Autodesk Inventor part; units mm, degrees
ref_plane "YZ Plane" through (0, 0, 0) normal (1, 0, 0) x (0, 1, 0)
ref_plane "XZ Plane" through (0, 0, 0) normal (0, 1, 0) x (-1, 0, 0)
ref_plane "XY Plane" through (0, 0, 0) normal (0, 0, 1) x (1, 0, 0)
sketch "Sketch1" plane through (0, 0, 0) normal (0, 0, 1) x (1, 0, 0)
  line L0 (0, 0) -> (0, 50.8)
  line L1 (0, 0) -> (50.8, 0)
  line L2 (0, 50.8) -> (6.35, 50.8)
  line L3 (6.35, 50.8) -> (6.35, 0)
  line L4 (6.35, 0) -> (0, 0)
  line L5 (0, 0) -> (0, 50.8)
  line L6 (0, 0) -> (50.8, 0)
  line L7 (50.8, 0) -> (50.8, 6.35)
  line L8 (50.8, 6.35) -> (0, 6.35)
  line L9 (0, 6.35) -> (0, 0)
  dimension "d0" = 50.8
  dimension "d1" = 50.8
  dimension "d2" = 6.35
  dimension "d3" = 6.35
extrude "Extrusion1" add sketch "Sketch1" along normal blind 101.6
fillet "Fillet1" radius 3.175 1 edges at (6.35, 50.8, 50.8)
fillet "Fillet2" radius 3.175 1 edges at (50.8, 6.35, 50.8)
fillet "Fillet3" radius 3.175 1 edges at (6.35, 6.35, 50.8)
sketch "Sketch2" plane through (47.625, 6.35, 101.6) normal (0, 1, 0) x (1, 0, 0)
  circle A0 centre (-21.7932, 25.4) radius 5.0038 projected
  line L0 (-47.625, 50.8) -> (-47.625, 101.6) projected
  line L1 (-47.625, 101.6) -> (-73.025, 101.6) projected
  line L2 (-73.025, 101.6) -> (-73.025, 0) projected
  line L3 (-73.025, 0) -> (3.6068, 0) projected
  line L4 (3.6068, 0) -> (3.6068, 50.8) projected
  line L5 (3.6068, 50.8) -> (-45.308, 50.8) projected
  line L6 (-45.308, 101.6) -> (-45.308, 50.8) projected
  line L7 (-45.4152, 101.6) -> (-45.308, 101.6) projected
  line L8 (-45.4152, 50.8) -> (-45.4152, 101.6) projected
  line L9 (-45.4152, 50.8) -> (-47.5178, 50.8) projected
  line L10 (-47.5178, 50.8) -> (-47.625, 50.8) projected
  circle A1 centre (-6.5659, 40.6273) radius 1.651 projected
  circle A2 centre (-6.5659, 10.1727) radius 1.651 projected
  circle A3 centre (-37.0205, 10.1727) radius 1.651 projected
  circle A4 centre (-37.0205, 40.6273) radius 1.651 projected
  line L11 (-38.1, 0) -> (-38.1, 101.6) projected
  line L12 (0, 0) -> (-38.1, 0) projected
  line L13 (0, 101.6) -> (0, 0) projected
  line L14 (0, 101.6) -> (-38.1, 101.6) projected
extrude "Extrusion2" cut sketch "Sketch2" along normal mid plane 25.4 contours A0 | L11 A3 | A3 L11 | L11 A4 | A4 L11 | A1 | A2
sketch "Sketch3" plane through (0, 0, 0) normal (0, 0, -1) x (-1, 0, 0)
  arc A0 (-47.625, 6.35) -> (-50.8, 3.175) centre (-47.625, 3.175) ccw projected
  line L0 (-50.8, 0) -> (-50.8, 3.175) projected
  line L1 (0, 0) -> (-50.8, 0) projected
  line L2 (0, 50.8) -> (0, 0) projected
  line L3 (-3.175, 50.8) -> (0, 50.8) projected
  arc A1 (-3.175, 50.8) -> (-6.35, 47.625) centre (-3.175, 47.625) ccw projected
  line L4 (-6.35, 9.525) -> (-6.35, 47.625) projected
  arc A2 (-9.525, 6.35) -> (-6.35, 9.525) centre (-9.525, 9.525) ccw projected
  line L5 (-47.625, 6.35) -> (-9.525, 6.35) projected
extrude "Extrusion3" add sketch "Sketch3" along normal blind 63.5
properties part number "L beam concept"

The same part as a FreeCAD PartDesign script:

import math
import FreeCAD as App
import Part
import Sketcher
Q = App.Units.Quantity


def edges_at(feature, points):
    """Names of the edges that pass closest to the given points."""
    edges = feature.Shape.Edges
    near = lambda p: min(range(len(edges)), key=lambda i: edges[i].distToShape(Part.Vertex(*p))[0])
    return sorted({f"Edge{near(p) + 1}" for p in points})

doc = App.newDocument("Part")
body = doc.addObject("PartDesign::Body", "Body")

# Sketch on XY plane
sketch1 = body.newObject("Sketcher::SketchObject", "Sketch")
sketch1.AttachmentSupport = (doc.getObject("XY_Plane"), [""])
sketch1.MapMode = "FlatFace"
sketch1.addGeometry(Part.LineSegment(App.Vector(0, 0, 0), App.Vector(51, 0, 0)), False)
sketch1.addGeometry(Part.LineSegment(App.Vector(51, 0, 0), App.Vector(51, 6, 0)), False)
sketch1.addGeometry(Part.LineSegment(App.Vector(51, 6, 0), App.Vector(6, 6, 0)), False)
sketch1.addGeometry(Part.LineSegment(App.Vector(6, 6, 0), App.Vector(6, 51, 0)), False)
sketch1.addGeometry(Part.LineSegment(App.Vector(6, 51, 0), App.Vector(0, 51, 0)), False)
sketch1.addGeometry(Part.LineSegment(App.Vector(0, 51, 0), App.Vector(0, 0, 0)), False)
sketch1.addConstraint(Sketcher.Constraint("Coincident", 0, 2, 1, 1))
sketch1.addConstraint(Sketcher.Constraint("Coincident", 1, 2, 2, 1))
sketch1.addConstraint(Sketcher.Constraint("Coincident", 2, 2, 3, 1))
sketch1.addConstraint(Sketcher.Constraint("Coincident", 3, 2, 4, 1))
sketch1.addConstraint(Sketcher.Constraint("Coincident", 4, 2, 5, 1))
sketch1.addConstraint(Sketcher.Constraint("Coincident", 5, 2, 0, 1))
sketch1.addConstraint(Sketcher.Constraint("Horizontal", 0))
sketch1.addConstraint(Sketcher.Constraint("Vertical", 1))
sketch1.addConstraint(Sketcher.Constraint("Horizontal", 2))
sketch1.addConstraint(Sketcher.Constraint("Vertical", 3))
sketch1.addConstraint(Sketcher.Constraint("Horizontal", 4))
sketch1.addConstraint(Sketcher.Constraint("Vertical", 5))
sketch1.addConstraint(Sketcher.Constraint("Coincident", 5, 2, -1, 1))
sketch1.addConstraint(Sketcher.Constraint("Equal", 4, 1))
sketch1.addConstraint(Sketcher.Constraint("Equal", 2, 3))
sketch1.addConstraint(Sketcher.Constraint("DistanceX", 0, 1, 0, 2, Q("2 in")))
sketch1.addConstraint(Sketcher.Constraint("DistanceX", 4, 2, 4, 1, Q("0.25 in")))
pad1 = body.newObject("PartDesign::Pad", "Pad")
pad1.Profile = sketch1
pad1.Length = Q("4 in")
doc.recompute()

fillet = body.newObject("PartDesign::Fillet", "Fillet")
fillet.Base = (pad1, edges_at(pad1, [(6.35, 50.8, 50.8)]))
fillet.Radius = Q("0.125 in")
doc.recompute()

fillet2 = body.newObject("PartDesign::Fillet", "Fillet001")
fillet2.Base = (fillet, edges_at(fillet, [(50.8, 6.35, 50.8)]))
fillet2.Radius = Q("0.125 in")
doc.recompute()

fillet3 = body.newObject("PartDesign::Fillet", "Fillet002")
fillet3.Base = (fillet2, edges_at(fillet2, [(6.35, 6.35, 50.8)]))
fillet3.Radius = Q("0.125 in")

# Sketch on XZ plane
sketch2 = body.newObject("Sketcher::SketchObject", "Sketch001")
sketch2.AttachmentSupport = (doc.getObject("XZ_Plane"), [""])
sketch2.MapMode = "FlatFace"
sketch2.AttachmentOffset = App.Placement(App.Vector(0, 0, -0.25 * 25.4), App.Rotation())
sketch2.addGeometry(Part.Circle(App.Vector(25.8, 76.2, 0), App.Vector(0, 0, 1), 5), False)
sketch2.addGeometry(Part.Circle(App.Vector(10.6, 91.4, 0), App.Vector(0, 0, 1), 1.7), False)
sketch2.addGeometry(Part.Circle(App.Vector(10.6, 61, 0), App.Vector(0, 0, 1), 1.7), False)
sketch2.addGeometry(Part.Circle(App.Vector(41.1, 61, 0), App.Vector(0, 0, 1), 1.7), False)
sketch2.addGeometry(Part.Circle(App.Vector(41.1, 91.4, 0), App.Vector(0, 0, 1), 1.7), False)
sketch2.addConstraint(Sketcher.Constraint("Equal", 1, 2))
sketch2.addConstraint(Sketcher.Constraint("Equal", 2, 3))
sketch2.addConstraint(Sketcher.Constraint("Equal", 3, 4))
sketch2.addConstraint(Sketcher.Constraint("Horizontal", 2, 3, 3, 3))
sketch2.addConstraint(Sketcher.Constraint("Horizontal", 1, 3, 4, 3))
sketch2.addConstraint(Sketcher.Constraint("Vertical", 1, 3, 2, 3))
sketch2.addConstraint(Sketcher.Constraint("Vertical", 3, 3, 4, 3))
sketch2.addConstraint(Sketcher.Constraint("Diameter", 1, Q("0.13 in")))
sketch2.addConstraint(Sketcher.Constraint("Diameter", 0, Q("0.394 in")))
sketch2.addConstraint(Sketcher.Constraint("DistanceY", -1, 1, 0, 3, Q("3 in")))
sketch2.addConstraint(Sketcher.Constraint("DistanceX", -1, 1, 0, 3, Q("1.017 in")))
sketch2.addConstraint(Sketcher.Constraint("DistanceY", 2, 3, 1, 3, Q("1.199 in")))
sketch2.addConstraint(Sketcher.Constraint("DistanceX", 2, 3, 3, 3, Q("1.199 in")))
sketch2.addConstraint(Sketcher.Constraint("DistanceX", -1, 1, 1, 3, Q("0.4175 in")))
sketch2.addConstraint(Sketcher.Constraint("DistanceY", -1, 1, 1, 3, Q("3.5995 in")))
pocket1 = body.newObject("PartDesign::Pocket", "Pocket")
pocket1.Profile = sketch2
pocket1.Length = Q("1 in")
pocket1.Midplane = True

# Sketch on XY plane
sketch3 = body.newObject("Sketcher::SketchObject", "Sketch002")
sketch3.AttachmentSupport = (doc.getObject("XY_Plane"), [""])
sketch3.MapMode = "FlatFace"
sketch3.addGeometry(Part.LineSegment(App.Vector(9.5, 6.3, 0), App.Vector(47.6, 6.3, 0)), False)
sketch3.addGeometry(Part.ArcOfCircle(Part.Circle(App.Vector(47.6, 3.2, 0), App.Vector(0, 0, 1), 3.2), math.radians(0), math.radians(90)), False)
sketch3.addGeometry(Part.LineSegment(App.Vector(50.8, 3.2, 0), App.Vector(50.8, 0, 0)), False)
sketch3.addGeometry(Part.LineSegment(App.Vector(50.8, 0, 0), App.Vector(0, 0, 0)), False)
sketch3.addGeometry(Part.LineSegment(App.Vector(0, 0, 0), App.Vector(0, 50.8, 0)), False)
sketch3.addGeometry(Part.LineSegment(App.Vector(0, 50.8, 0), App.Vector(3.2, 50.8, 0)), False)
sketch3.addGeometry(Part.ArcOfCircle(Part.Circle(App.Vector(3.2, 47.6, 0), App.Vector(0, 0, 1), 3.2), math.radians(0), math.radians(90)), False)
sketch3.addGeometry(Part.LineSegment(App.Vector(6.3, 47.6, 0), App.Vector(6.3, 9.5, 0)), False)
sketch3.addGeometry(Part.ArcOfCircle(Part.Circle(App.Vector(9.5, 9.5, 0), App.Vector(0, 0, 1), 3.2), math.radians(180), math.radians(270)), False)
sketch3.addConstraint(Sketcher.Constraint("Tangent", 0, 2, 1, 2))
sketch3.addConstraint(Sketcher.Constraint("Tangent", 1, 1, 2, 1))
sketch3.addConstraint(Sketcher.Constraint("Coincident", 2, 2, 3, 1))
sketch3.addConstraint(Sketcher.Constraint("Coincident", 3, 2, 4, 1))
sketch3.addConstraint(Sketcher.Constraint("Coincident", 4, 2, 5, 1))
sketch3.addConstraint(Sketcher.Constraint("Tangent", 5, 2, 6, 2))
sketch3.addConstraint(Sketcher.Constraint("Tangent", 6, 1, 7, 1))
sketch3.addConstraint(Sketcher.Constraint("Tangent", 7, 2, 8, 1))
sketch3.addConstraint(Sketcher.Constraint("Tangent", 8, 2, 0, 1))
sketch3.addConstraint(Sketcher.Constraint("Horizontal", 0))
sketch3.addConstraint(Sketcher.Constraint("Vertical", 2))
sketch3.addConstraint(Sketcher.Constraint("Horizontal", 3))
sketch3.addConstraint(Sketcher.Constraint("Vertical", 4))
sketch3.addConstraint(Sketcher.Constraint("Horizontal", 5))
sketch3.addConstraint(Sketcher.Constraint("Vertical", 7))
sketch3.addConstraint(Sketcher.Constraint("Coincident", 3, 2, -1, 1))
sketch3.addConstraint(Sketcher.Constraint("Equal", 1, 6))
sketch3.addConstraint(Sketcher.Constraint("Equal", 6, 8))
sketch3.addConstraint(Sketcher.Constraint("Equal", 5, 2))
sketch3.addConstraint(Sketcher.Constraint("Equal", 3, 4))
sketch3.addConstraint(Sketcher.Constraint("DistanceX", 3, 2, 3, 1, Q("2 in")))
sketch3.addConstraint(Sketcher.Constraint("DistanceX", 0, 1, 0, 2, Q("1.5 in")))
sketch3.addConstraint(Sketcher.Constraint("Radius", 1, Q("0.125 in")))
pad2 = body.newObject("PartDesign::Pad", "Pad001")
pad2.Profile = sketch3
pad2.Length = Q("2.5 in")
pad2.Reversed = True

doc.recompute()
